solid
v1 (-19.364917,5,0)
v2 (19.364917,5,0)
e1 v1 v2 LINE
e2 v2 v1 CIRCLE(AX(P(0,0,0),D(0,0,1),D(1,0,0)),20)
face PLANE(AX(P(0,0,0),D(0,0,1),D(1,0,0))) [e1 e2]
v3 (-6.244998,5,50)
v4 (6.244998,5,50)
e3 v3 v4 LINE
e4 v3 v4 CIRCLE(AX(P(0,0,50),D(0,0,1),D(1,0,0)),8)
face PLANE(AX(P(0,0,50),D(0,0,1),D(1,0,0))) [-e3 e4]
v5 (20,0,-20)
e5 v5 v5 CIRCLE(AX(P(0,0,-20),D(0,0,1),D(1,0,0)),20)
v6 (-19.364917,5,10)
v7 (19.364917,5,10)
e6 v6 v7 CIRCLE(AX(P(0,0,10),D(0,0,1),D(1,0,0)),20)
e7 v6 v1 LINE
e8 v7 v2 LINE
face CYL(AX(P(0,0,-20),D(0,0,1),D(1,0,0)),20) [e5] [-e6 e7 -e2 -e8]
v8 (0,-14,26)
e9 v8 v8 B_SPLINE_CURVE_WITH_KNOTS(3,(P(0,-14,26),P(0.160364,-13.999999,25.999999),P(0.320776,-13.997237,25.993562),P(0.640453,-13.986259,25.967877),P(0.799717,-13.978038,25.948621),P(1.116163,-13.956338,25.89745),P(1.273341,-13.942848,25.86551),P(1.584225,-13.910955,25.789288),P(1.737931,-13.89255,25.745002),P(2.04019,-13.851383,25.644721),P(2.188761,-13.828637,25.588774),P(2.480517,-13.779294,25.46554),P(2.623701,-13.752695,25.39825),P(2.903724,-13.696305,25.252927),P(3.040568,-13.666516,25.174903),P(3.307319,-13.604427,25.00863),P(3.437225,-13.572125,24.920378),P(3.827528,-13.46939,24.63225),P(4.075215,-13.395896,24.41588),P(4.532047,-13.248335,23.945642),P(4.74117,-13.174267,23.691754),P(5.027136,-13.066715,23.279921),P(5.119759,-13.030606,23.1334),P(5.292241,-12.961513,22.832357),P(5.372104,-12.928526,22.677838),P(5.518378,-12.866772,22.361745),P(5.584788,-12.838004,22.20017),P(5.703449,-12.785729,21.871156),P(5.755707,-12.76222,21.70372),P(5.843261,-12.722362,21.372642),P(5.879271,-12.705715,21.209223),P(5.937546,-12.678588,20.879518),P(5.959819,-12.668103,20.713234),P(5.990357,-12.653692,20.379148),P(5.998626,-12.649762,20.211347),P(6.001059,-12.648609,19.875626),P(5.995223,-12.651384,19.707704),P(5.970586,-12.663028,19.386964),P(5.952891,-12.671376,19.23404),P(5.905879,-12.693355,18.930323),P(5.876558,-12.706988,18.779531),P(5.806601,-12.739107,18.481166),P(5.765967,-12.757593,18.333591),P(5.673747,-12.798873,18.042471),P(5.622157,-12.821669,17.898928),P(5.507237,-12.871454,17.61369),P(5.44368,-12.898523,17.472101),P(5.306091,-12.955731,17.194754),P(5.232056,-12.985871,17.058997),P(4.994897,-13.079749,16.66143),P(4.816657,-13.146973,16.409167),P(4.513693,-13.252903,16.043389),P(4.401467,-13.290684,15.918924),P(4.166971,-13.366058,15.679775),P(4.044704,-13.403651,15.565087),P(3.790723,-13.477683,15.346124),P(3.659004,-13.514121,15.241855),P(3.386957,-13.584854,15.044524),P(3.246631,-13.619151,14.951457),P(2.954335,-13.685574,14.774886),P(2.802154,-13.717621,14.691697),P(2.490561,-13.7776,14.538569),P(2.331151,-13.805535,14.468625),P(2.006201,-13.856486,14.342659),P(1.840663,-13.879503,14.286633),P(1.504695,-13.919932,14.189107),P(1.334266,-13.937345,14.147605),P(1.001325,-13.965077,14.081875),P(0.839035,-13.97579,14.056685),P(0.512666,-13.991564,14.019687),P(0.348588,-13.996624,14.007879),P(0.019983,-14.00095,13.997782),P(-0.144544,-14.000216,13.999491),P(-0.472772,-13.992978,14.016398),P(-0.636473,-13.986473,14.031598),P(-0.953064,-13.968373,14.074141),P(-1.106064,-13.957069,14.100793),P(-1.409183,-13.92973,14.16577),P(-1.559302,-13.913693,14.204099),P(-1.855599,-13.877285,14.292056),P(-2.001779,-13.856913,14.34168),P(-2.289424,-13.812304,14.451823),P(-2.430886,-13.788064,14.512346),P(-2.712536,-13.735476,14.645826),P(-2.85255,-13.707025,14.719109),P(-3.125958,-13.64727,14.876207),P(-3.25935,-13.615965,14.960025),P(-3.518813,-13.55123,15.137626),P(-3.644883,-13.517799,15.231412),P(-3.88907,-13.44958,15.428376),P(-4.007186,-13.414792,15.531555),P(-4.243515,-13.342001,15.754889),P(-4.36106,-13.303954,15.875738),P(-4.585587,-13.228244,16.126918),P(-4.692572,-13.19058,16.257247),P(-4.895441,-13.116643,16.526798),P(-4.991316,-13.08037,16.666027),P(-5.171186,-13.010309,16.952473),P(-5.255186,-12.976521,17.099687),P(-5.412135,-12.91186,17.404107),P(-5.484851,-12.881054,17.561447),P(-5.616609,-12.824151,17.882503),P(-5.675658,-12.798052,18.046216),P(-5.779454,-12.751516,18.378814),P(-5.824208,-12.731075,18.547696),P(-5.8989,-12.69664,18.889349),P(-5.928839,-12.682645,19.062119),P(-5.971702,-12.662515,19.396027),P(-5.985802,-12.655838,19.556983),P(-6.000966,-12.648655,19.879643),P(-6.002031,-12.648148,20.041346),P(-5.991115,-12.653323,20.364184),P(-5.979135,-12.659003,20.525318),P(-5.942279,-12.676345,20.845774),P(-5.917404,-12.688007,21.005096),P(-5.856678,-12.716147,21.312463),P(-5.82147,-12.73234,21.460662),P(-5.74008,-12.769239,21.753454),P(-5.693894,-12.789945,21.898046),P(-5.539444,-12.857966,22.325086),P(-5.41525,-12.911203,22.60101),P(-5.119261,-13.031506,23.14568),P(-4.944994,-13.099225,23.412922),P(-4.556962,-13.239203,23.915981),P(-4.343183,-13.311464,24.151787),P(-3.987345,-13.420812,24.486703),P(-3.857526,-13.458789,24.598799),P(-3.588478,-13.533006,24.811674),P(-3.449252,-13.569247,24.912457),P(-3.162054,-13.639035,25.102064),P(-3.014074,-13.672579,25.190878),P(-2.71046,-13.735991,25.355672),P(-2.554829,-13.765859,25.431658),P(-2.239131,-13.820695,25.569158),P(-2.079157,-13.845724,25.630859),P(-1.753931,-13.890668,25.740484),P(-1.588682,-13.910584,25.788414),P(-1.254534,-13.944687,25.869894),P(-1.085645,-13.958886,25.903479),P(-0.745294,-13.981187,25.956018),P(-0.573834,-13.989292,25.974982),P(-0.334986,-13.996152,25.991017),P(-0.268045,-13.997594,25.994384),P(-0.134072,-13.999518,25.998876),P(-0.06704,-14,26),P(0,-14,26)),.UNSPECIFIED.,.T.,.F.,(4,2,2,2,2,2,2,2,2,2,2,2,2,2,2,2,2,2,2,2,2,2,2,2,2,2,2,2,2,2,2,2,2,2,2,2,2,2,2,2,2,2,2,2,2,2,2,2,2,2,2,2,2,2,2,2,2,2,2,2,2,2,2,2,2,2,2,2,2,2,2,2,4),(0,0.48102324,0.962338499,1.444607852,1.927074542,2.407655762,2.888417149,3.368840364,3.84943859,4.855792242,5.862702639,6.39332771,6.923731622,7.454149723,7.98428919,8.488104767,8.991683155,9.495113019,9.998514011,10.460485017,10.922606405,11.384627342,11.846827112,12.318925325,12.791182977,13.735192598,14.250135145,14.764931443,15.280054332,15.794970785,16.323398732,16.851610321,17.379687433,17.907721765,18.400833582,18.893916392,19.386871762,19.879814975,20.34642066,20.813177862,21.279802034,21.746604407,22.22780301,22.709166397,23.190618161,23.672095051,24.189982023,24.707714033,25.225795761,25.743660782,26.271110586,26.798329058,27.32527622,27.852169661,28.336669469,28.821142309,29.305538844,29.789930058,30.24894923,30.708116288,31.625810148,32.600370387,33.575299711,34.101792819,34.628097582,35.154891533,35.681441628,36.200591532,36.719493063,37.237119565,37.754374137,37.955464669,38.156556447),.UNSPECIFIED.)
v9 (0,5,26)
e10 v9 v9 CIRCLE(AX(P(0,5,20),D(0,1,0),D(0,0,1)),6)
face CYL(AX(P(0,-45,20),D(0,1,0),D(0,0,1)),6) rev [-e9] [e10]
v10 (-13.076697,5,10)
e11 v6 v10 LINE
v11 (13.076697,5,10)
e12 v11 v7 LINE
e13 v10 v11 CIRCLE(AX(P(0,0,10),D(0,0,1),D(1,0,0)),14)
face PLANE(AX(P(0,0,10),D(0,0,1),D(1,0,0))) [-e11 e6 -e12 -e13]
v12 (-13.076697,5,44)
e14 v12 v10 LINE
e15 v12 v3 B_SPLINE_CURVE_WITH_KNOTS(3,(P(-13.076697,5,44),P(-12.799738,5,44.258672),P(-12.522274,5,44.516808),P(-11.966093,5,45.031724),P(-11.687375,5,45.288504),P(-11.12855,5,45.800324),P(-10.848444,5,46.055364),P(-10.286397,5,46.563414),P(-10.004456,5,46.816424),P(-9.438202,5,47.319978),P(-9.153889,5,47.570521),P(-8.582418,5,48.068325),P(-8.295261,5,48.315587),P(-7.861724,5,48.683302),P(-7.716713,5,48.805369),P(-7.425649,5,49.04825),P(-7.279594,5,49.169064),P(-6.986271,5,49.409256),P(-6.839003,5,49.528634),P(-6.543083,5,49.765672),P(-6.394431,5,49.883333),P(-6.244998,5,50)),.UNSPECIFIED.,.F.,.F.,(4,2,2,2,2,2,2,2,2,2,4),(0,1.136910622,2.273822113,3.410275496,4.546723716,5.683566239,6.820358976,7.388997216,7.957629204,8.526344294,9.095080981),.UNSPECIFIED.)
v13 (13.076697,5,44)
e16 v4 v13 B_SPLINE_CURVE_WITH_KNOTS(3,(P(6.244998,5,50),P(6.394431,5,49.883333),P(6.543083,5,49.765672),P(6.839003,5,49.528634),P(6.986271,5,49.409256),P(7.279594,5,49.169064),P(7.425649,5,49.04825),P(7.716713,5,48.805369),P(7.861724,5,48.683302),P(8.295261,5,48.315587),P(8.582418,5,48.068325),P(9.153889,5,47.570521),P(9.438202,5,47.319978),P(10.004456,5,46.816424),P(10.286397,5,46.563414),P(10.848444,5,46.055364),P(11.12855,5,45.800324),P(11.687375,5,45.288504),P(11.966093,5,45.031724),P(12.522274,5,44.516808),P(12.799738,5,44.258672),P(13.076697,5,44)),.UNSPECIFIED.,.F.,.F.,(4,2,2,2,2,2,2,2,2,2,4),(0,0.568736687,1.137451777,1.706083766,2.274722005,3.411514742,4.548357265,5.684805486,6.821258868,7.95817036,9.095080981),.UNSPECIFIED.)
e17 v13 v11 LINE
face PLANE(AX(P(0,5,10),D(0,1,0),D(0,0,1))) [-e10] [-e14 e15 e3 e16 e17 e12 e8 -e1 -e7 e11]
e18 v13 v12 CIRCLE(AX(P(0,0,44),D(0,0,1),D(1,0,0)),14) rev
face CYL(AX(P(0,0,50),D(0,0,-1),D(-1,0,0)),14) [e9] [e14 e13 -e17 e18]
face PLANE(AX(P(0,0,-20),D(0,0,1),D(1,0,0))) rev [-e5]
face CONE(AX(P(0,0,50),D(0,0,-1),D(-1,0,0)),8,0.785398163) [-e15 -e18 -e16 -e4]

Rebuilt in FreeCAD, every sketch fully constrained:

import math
import FreeCAD as App
import Part
import Sketcher
Q = App.Units.Quantity


def edges_at(feature, points):
    """Names of the edges that pass closest to the given points."""
    edges = feature.Shape.Edges
    near = lambda p: min(range(len(edges)), key=lambda i: edges[i].distToShape(Part.Vertex(*p))[0])
    return sorted({f"Edge{near(p) + 1}" for p in points})

doc = App.newDocument("Part")
body = doc.addObject("PartDesign::Body", "Body")

# Sketch on XY plane
sketch1 = body.newObject("Sketcher::SketchObject", "Sketch")
sketch1.AttachmentSupport = (doc.getObject("XY_Plane"), [""])
sketch1.MapMode = "FlatFace"
sketch1.addGeometry(Part.ArcOfCircle(Part.Circle(App.Vector(0, 0, 0), App.Vector(0, 0, 1), 20), math.radians(14), math.radians(166)), False)
sketch1.addGeometry(Part.ArcOfCircle(Part.Circle(App.Vector(0, 0, 0), App.Vector(0, 0, 1), 20), math.radians(166), math.radians(360)), False)
sketch1.addGeometry(Part.ArcOfCircle(Part.Circle(App.Vector(0, 0, 0), App.Vector(0, 0, 1), 20), math.radians(0), math.radians(14.48)), False)
sketch1.addConstraint(Sketcher.Constraint("Tangent", 0, 2, 1, 1))
sketch1.addConstraint(Sketcher.Constraint("Tangent", 1, 2, 2, 1))
sketch1.addConstraint(Sketcher.Constraint("Tangent", 2, 2, 0, 1))
sketch1.addConstraint(Sketcher.Constraint("Coincident", 0, 3, -1, 1))
sketch1.addConstraint(Sketcher.Constraint("PointOnObject", 1, 2, -1))
sketch1.addConstraint(Sketcher.Constraint("Horizontal", 0, 2, 2, 2))
sketch1.addConstraint(Sketcher.Constraint("Radius", 0, Q("20 mm")))
sketch1.addConstraint(Sketcher.Constraint("DistanceY", -1, 1, 0, 2, Q("5 mm")))
pad1 = body.newObject("PartDesign::Pad", "Pad")
pad1.Profile = sketch1
pad1.Length = 20
pad1.Reversed = True

# Sketch on XY plane
sketch2 = body.newObject("Sketcher::SketchObject", "Sketch001")
sketch2.AttachmentSupport = (doc.getObject("XY_Plane"), [""])
sketch2.MapMode = "FlatFace"
sketch2.AttachmentOffset = App.Placement(App.Vector(0, 0, 10), App.Rotation())
sketch2.addGeometry(Part.LineSegment(App.Vector(-13, 5, 0), App.Vector(-19, 5, 0)), False)
sketch2.addGeometry(Part.ArcOfCircle(Part.Circle(App.Vector(0, 0, 0), App.Vector(0, 0, 1), 20), math.radians(166), math.radians(360)), False)
sketch2.addGeometry(Part.ArcOfCircle(Part.Circle(App.Vector(0, 0, 0), App.Vector(0, 0, 1), 20), math.radians(0), math.radians(14.48)), False)
sketch2.addGeometry(Part.LineSegment(App.Vector(19, 5, 0), App.Vector(13, 5, 0)), False)
sketch2.addGeometry(Part.ArcOfCircle(Part.Circle(App.Vector(0, 0, 0), App.Vector(0, 0, 1), 14), math.radians(0), math.radians(21)), False)
sketch2.addGeometry(Part.ArcOfCircle(Part.Circle(App.Vector(0, 0, 0), App.Vector(0, 0, 1), 14), math.radians(159), math.radians(360)), False)
sketch2.addConstraint(Sketcher.Constraint("Coincident", 0, 2, 1, 1))
sketch2.addConstraint(Sketcher.Constraint("Tangent", 1, 2, 2, 1))
sketch2.addConstraint(Sketcher.Constraint("Coincident", 2, 2, 3, 1))
sketch2.addConstraint(Sketcher.Constraint("Coincident", 3, 2, 4, 2))
sketch2.addConstraint(Sketcher.Constraint("Tangent", 4, 1, 5, 2))
sketch2.addConstraint(Sketcher.Constraint("Coincident", 5, 1, 0, 1))
sketch2.addConstraint(Sketcher.Constraint("Horizontal", 0))
sketch2.addConstraint(Sketcher.Constraint("Horizontal", 3))
sketch2.addConstraint(Sketcher.Constraint("Coincident", 1, 3, -1, 1))
sketch2.addConstraint(Sketcher.Constraint("Coincident", 4, 3, -1, 1))
sketch2.addConstraint(Sketcher.Constraint("Equal", 1, 2))
sketch2.addConstraint(Sketcher.Constraint("Equal", 4, 5))
sketch2.addConstraint(Sketcher.Constraint("PointOnObject", 1, 2, -1))
sketch2.addConstraint(Sketcher.Constraint("PointOnObject", 4, 1, -1))
sketch2.addConstraint(Sketcher.Constraint("Horizontal", 0, 2, 2, 2))
sketch2.addConstraint(Sketcher.Constraint("Radius", 1, Q("20 mm")))
sketch2.addConstraint(Sketcher.Constraint("Radius", 4, Q("14 mm")))
sketch2.addConstraint(Sketcher.Constraint("DistanceY", -1, 1, 0, 2, Q("5 mm")))
pad2 = body.newObject("PartDesign::Pad", "Pad001")
pad2.Profile = sketch2
pad2.Length = 10
pad2.Reversed = True

# Sketch on XY plane
sketch3 = body.newObject("Sketcher::SketchObject", "Sketch002")
sketch3.AttachmentSupport = (doc.getObject("XY_Plane"), [""])
sketch3.MapMode = "FlatFace"
sketch3.AttachmentOffset = App.Placement(App.Vector(0, 0, 50), App.Rotation())
sketch3.addGeometry(Part.LineSegment(App.Vector(13, 5, 0), App.Vector(-13, 5, 0)), False)
sketch3.addGeometry(Part.ArcOfCircle(Part.Circle(App.Vector(0, 0, 0), App.Vector(0, 0, 1), 14), math.radians(159), math.radians(360)), False)
sketch3.addGeometry(Part.ArcOfCircle(Part.Circle(App.Vector(0, 0, 0), App.Vector(0, 0, 1), 14), math.radians(0), math.radians(21)), False)
sketch3.addConstraint(Sketcher.Constraint("Coincident", 0, 2, 1, 1))
sketch3.addConstraint(Sketcher.Constraint("Tangent", 1, 2, 2, 1))
sketch3.addConstraint(Sketcher.Constraint("Coincident", 2, 2, 0, 1))
sketch3.addConstraint(Sketcher.Constraint("Horizontal", 0))
sketch3.addConstraint(Sketcher.Constraint("Coincident", 1, 3, -1, 1))
sketch3.addConstraint(Sketcher.Constraint("Equal", 1, 2))
sketch3.addConstraint(Sketcher.Constraint("PointOnObject", 1, 2, -1))
sketch3.addConstraint(Sketcher.Constraint("Radius", 1, Q("14 mm")))
sketch3.addConstraint(Sketcher.Constraint("DistanceY", -1, 1, 0, 2, Q("5 mm")))
pad3 = body.newObject("PartDesign::Pad", "Pad002")
pad3.Profile = sketch3
pad3.Length = 50
pad3.Reversed = True
doc.recompute()

chamfer = body.newObject("PartDesign::Chamfer", "Chamfer")
chamfer.Base = (pad3, edges_at(pad3, [(-2.542, -13.767, 50)]))
chamfer.Size = 6

# Sketch on XZ plane
sketch4 = body.newObject("Sketcher::SketchObject", "Sketch003")
sketch4.AttachmentSupport = (doc.getObject("XZ_Plane"), [""])
sketch4.MapMode = "FlatFace"
sketch4.AttachmentOffset = App.Placement(App.Vector(0, 0, -5), App.Rotation())
sketch4.addGeometry(Part.Circle(App.Vector(0, 20, 0), App.Vector(0, 0, 1), 6), False)
sketch4.addConstraint(Sketcher.Constraint("PointOnObject", 0, 3, -2))
sketch4.addConstraint(Sketcher.Constraint("Diameter", 0, Q("12 mm")))
sketch4.addConstraint(Sketcher.Constraint("DistanceY", -1, 1, 0, 3, Q("20 mm")))
pocket1 = body.newObject("PartDesign::Pocket", "Pocket")
pocket1.Profile = sketch4
pocket1.Length = 50
pocket1.Reversed = True

doc.recompute()
